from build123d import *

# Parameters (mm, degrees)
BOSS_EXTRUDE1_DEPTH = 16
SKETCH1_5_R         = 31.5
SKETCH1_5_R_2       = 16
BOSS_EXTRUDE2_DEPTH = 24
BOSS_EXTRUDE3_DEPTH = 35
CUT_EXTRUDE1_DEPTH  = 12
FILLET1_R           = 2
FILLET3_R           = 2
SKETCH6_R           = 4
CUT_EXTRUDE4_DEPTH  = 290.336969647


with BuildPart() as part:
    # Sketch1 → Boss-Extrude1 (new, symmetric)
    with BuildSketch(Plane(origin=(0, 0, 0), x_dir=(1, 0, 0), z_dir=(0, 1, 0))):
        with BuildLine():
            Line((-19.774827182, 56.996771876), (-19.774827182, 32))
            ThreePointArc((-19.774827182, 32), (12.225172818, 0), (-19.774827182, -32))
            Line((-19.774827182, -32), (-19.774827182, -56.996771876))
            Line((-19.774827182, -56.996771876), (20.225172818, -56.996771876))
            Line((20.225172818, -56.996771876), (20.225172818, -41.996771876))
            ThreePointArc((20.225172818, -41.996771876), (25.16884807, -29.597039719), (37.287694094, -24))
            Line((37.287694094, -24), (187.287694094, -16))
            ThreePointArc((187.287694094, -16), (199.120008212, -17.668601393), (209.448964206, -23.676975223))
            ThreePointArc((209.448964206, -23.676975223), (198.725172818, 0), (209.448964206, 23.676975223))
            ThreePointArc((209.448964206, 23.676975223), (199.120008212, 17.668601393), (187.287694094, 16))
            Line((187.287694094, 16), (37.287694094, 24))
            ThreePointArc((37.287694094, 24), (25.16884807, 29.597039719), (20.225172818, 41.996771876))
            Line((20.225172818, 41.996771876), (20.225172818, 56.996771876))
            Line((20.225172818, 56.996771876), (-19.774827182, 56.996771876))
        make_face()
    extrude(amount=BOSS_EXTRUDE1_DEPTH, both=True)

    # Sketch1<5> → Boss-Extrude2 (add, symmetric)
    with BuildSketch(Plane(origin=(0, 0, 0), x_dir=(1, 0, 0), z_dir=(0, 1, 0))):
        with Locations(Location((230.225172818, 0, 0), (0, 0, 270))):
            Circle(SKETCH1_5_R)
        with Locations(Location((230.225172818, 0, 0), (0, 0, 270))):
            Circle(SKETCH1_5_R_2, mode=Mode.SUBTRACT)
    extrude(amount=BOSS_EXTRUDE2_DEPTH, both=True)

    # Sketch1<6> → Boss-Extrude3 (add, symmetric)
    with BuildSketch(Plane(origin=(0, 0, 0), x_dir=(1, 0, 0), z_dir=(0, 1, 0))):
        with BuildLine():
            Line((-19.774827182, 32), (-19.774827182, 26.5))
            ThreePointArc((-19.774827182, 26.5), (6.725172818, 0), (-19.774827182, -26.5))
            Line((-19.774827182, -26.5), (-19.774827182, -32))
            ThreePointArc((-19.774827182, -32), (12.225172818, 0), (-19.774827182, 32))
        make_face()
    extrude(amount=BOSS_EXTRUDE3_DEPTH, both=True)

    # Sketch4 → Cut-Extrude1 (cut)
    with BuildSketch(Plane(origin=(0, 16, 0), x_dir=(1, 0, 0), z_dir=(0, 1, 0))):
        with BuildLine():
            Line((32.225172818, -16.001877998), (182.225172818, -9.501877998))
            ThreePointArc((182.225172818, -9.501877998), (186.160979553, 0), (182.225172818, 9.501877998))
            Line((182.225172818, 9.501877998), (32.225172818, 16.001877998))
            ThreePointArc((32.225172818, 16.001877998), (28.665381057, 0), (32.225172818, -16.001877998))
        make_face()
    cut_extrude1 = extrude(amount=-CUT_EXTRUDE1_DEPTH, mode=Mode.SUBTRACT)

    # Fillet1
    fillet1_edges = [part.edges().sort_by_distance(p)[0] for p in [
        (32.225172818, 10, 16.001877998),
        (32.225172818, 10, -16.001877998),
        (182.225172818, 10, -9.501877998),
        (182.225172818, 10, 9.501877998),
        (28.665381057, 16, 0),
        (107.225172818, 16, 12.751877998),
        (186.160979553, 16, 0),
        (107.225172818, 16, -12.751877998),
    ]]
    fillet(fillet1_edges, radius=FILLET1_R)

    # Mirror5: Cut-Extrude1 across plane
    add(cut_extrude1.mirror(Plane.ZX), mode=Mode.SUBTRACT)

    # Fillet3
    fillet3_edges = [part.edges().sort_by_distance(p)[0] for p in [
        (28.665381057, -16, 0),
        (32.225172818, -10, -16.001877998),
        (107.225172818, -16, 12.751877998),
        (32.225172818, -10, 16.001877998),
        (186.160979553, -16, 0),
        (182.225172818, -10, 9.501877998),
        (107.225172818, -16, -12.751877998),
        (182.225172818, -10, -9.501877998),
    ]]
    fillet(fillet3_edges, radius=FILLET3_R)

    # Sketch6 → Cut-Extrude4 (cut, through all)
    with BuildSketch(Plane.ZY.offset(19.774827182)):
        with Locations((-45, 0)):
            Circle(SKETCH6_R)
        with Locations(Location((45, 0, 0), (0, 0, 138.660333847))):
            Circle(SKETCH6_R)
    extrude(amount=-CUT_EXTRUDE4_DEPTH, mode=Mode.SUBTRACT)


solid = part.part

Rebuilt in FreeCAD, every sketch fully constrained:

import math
import FreeCAD as App
import Part
import Sketcher

V = App.Vector


def edges_at(feature, points):
    """Names of the edges that pass closest to the given points."""
    edges = feature.Shape.Edges
    near = lambda p: min(range(len(edges)), key=lambda i: edges[i].distToShape(Part.Vertex(*p))[0])
    return sorted({f"Edge{near(p) + 1}" for p in points})

doc = App.newDocument("Part")
body = doc.addObject("PartDesign::Body", "Body")

sketch1 = body.newObject("Sketcher::SketchObject", "Sketch")
sketch1.AttachmentSupport = (doc.getObject("XZ_Plane"), [""])
sketch1.MapMode = "FlatFace"
sketch1.addGeometry([
    Part.LineSegment(V(-20, -57, 0), V(-20, -32, 0)),
    Part.ArcOfCircle(Part.Circle(V(-20, 0, 0), V(0, 0, 1), 32), math.radians(-90), math.radians(90)),
    Part.LineSegment(V(-20, 32, 0), V(-20, 57, 0)),
    Part.LineSegment(V(-20, 57, 0), V(20, 57, 0)),
    Part.LineSegment(V(20, 57, 0), V(20, 42, 0)),
    Part.ArcOfCircle(Part.Circle(V(38, 42, 0), V(0, 0, 1), 18), math.radians(180), math.radians(267)),
    Part.LineSegment(V(37, 24, 0), V(187, 16, 0)),
    Part.ArcOfCircle(Part.Circle(V(189, 47, 0), V(0, 0, 1), 31), math.radians(-93), math.radians(-49)),
    Part.ArcOfCircle(Part.Circle(V(230, 0, 0), V(0, 0, 1), 32), math.radians(131), math.radians(229)),
    Part.ArcOfCircle(Part.Circle(V(189, -47, 0), V(0, 0, 1), 31), math.radians(49), math.radians(93)),
    Part.LineSegment(V(187, -16, 0), V(37, -24, 0)),
    Part.ArcOfCircle(Part.Circle(V(38, -42, 0), V(0, 0, 1), 18), math.radians(93), math.radians(180)),
    Part.LineSegment(V(20, -42, 0), V(20, -57, 0)),
    Part.LineSegment(V(20, -57, 0), V(-20, -57, 0)),
], False)
sketch1.addConstraint([
    Sketcher.Constraint("Coincident", 0, 2, 1, 1),
    Sketcher.Constraint("Coincident", 1, 2, 2, 1),
    Sketcher.Constraint("Coincident", 2, 2, 3, 1),
    Sketcher.Constraint("Coincident", 3, 2, 4, 1),
    Sketcher.Constraint("Tangent", 4, 2, 5, 1),
    Sketcher.Constraint("Tangent", 5, 2, 6, 1),
    Sketcher.Constraint("Tangent", 6, 2, 7, 1),
    Sketcher.Constraint("Tangent", 7, 2, 8, 1),
    Sketcher.Constraint("Tangent", 8, 2, 9, 1),
    Sketcher.Constraint("Tangent", 9, 2, 10, 1),
    Sketcher.Constraint("Tangent", 10, 2, 11, 1),
    Sketcher.Constraint("Tangent", 11, 2, 12, 1),
    Sketcher.Constraint("Coincident", 12, 2, 13, 1),
    Sketcher.Constraint("Coincident", 13, 2, 0, 1),
    Sketcher.Constraint("Vertical", 0),
    Sketcher.Constraint("Vertical", 2),
    Sketcher.Constraint("Horizontal", 3),
    Sketcher.Constraint("Vertical", 4),
    Sketcher.Constraint("Vertical", 12),
    Sketcher.Constraint("Horizontal", 13),
    Sketcher.Constraint("Equal", 7, 9),
    Sketcher.Constraint("Equal", 5, 11),
    Sketcher.Constraint("Symmetric", 7, 3, 9, 3, -1),
    Sketcher.Constraint("Symmetric", 5, 3, 11, 3, -1),
    Sketcher.Constraint("Symmetric", 0, 2, 1, 2, -1),
    Sketcher.Constraint("Vertical", 1, 3, 0, 2),
    Sketcher.Constraint("Equal", 0, 2),
    Sketcher.Constraint("Radius", 1, 32.0),
    Sketcher.Constraint("Radius", 8, 31.5),
    Sketcher.Constraint("DistanceX", 3, 1, 3, 2, 40.0),
    Sketcher.Constraint("DistanceY", 4, 2, 4, 1, 15.0),
    Sketcher.Constraint("DistanceY", -1, 1, 5, 2, 24.0),
    Sketcher.Constraint("DistanceY", -1, 1, 6, 2, 16.0),
    Sketcher.Constraint("DistanceX", 1, 3, 8, 3, 250.0),
    Sketcher.Constraint("DistanceX", 5, 2, 6, 2, 150.0),
    Sketcher.Constraint("Radius", 5, 18.022349),
    Sketcher.Constraint("DistanceX", -1, 1, 5, 3, 38.247522),
])
pad1 = body.newObject("PartDesign::Pad", "Pad")
pad1.Profile = sketch1
pad1.Length = 32
pad1.Midplane = True

sketch2 = body.newObject("Sketcher::SketchObject", "Sketch001")
sketch2.AttachmentSupport = (doc.getObject("XZ_Plane"), [""])
sketch2.MapMode = "FlatFace"
sketch2.addGeometry([
    Part.Circle(V(230, 0, 0), V(0, 0, 1), 32),
    Part.Circle(V(230, 0, 0), V(0, 0, 1), 16),
], False)
sketch2.addConstraint([
    Sketcher.Constraint("Coincident", 1, 3, 0, 3),
    Sketcher.Constraint("PointOnObject", 0, 3, -1),
    Sketcher.Constraint("Diameter", 0, 63.0),
    Sketcher.Constraint("Diameter", 1, 32.0),
    Sketcher.Constraint("DistanceX", -1, 1, 0, 3, 230.225173),
])
pad2 = body.newObject("PartDesign::Pad", "Pad001")
pad2.Profile = sketch2
pad2.Length = 48
pad2.Midplane = True

sketch3 = body.newObject("Sketcher::SketchObject", "Sketch002")
sketch3.AttachmentSupport = (doc.getObject("XZ_Plane"), [""])
sketch3.MapMode = "FlatFace"
sketch3.addGeometry([
    Part.LineSegment(V(-20, -32, 0), V(-20, -26, 0)),
    Part.ArcOfCircle(Part.Circle(V(-20, 0, 0), V(0, 0, 1), 26), math.radians(-90), math.radians(90)),
    Part.LineSegment(V(-20, 26, 0), V(-20, 32, 0)),
    Part.ArcOfCircle(Part.Circle(V(-20, 0, 0), V(0, 0, 1), 32), math.radians(-90), math.radians(90)),
], False)
sketch3.addConstraint([
    Sketcher.Constraint("Coincident", 0, 2, 1, 1),
    Sketcher.Constraint("Coincident", 1, 2, 2, 1),
    Sketcher.Constraint("Coincident", 2, 2, 3, 2),
    Sketcher.Constraint("Coincident", 3, 1, 0, 1),
    Sketcher.Constraint("Vertical", 0),
    Sketcher.Constraint("Vertical", 2),
    Sketcher.Constraint("Coincident", 3, 3, 1, 3),
    Sketcher.Constraint("Symmetric", 0, 2, 1, 2, -1),
    Sketcher.Constraint("Vertical", 3, 3, 0, 2),
    Sketcher.Constraint("Radius", 3, 32.0),
    Sketcher.Constraint("Radius", 1, 26.5),
    Sketcher.Constraint("DistanceX", 1, 3, -1, 1, 19.774827),
])
pad3 = body.newObject("PartDesign::Pad", "Pad002")
pad3.Profile = sketch3
pad3.Length = 70
pad3.Midplane = True

sketch4 = body.newObject("Sketcher::SketchObject", "Sketch003")
sketch4.AttachmentSupport = (doc.getObject("XZ_Plane"), [""])
sketch4.MapMode = "FlatFace"
sketch4.AttachmentOffset = App.Placement(V(0, 0, -16), App.Rotation())
sketch4.addGeometry([
    Part.LineSegment(V(32, 16, 0), V(182, 10, 0)),
    Part.ArcOfCircle(Part.Circle(V(173, 0, 0), V(0, 0, 1), 13), math.radians(-45), math.radians(45)),
    Part.LineSegment(V(182, -10, 0), V(32, -16, 0)),
    Part.ArcOfCircle(Part.Circle(V(66, 0, 0), V(0, 0, 1), 38), math.radians(155), math.radians(205)),
], False)
sketch4.addConstraint([
    Sketcher.Constraint("Coincident", 0, 2, 1, 2),
    Sketcher.Constraint("Coincident", 1, 1, 2, 1),
    Sketcher.Constraint("Coincident", 2, 2, 3, 2),
    Sketcher.Constraint("Coincident", 3, 1, 0, 1),
    Sketcher.Constraint("Symmetric", 0, 2, 1, 1, -1),
    Sketcher.Constraint("Symmetric", 2, 2, 3, 1, -1),
    Sketcher.Constraint("DistanceX", 2, 2, 1, 1, 150.0),
    Sketcher.Constraint("DistanceY", 2, 2, 1, 1, 6.5),
    Sketcher.Constraint("Radius", 1, 13.437685),
    Sketcher.Constraint("Radius", 3, 37.745497),
    Sketcher.Constraint("DistanceX", -1, 1, 1, 3, 172.723295),
    Sketcher.Constraint("DistanceX", -1, 1, 3, 3, 66.410878),
])
pocket1 = body.newObject("PartDesign::Pocket", "Pocket")
pocket1.Profile = sketch4
pocket1.Length = 12
pocket1.Reversed = True
doc.recompute()

fillet = body.newObject("PartDesign::Fillet", "Fillet")
fillet.Base = (pocket1, edges_at(pocket1, [
    (32.225, 10, 16.002),
    (32.225, 10, -16.002),
    (182.225, 10, -9.502),
    (182.225, 10, 9.502),
    (28.665, 16, 0),
    (107.225, 16, 12.752),
    (186.161, 16, 0),
    (107.225, 16, -12.752),
]))
fillet.Radius = 2
doc.recompute()

mirrored = body.newObject("PartDesign::Mirrored", "Mirrored")
mirrored.Originals = [pocket1]
mirrored.MirrorPlane = (doc.getObject("XZ_Plane"), [""])
body.Tip = mirrored
doc.recompute()

fillet2 = body.newObject("PartDesign::Fillet", "Fillet001")
fillet2.Base = (mirrored, edges_at(mirrored, [
    (28.665, -16, 0),
    (32.225, -10, -16.002),
    (107.225, -16, 12.752),
    (32.225, -10, 16.002),
    (186.161, -16, 0),
    (182.225, -10, 9.502),
    (107.225, -16, -12.752),
    (182.225, -10, -9.502),
]))
fillet2.Radius = 2

sketch5 = body.newObject("Sketcher::SketchObject", "Sketch004")
sketch5.AttachmentSupport = (doc.getObject("YZ_Plane"), [""])
sketch5.MapMode = "FlatFace"
sketch5.AttachmentOffset = App.Placement(V(0, 0, -19.774827), App.Rotation())
sketch5.addGeometry([
    Part.Circle(V(0, -45, 0), V(0, 0, 1), 4),
    Part.Circle(V(0, 45, 0), V(0, 0, 1), 4),
], False)
sketch5.addConstraint([
    Sketcher.Constraint("Equal", 0, 1),
    Sketcher.Constraint("Symmetric", 0, 3, 1, 3, -1, 1),
    Sketcher.Constraint("PointOnObject", 0, 3, -2),
    Sketcher.Constraint("Diameter", 0, 8.0),
    Sketcher.Constraint("DistanceY", 0, 3, -1, 1, 45.0),
])
pocket2 = body.newObject("PartDesign::Pocket", "Pocket001")
pocket2.Profile = sketch5
pocket2.Type = "ThroughAll"
pocket2.Reversed = True

doc.recompute()
